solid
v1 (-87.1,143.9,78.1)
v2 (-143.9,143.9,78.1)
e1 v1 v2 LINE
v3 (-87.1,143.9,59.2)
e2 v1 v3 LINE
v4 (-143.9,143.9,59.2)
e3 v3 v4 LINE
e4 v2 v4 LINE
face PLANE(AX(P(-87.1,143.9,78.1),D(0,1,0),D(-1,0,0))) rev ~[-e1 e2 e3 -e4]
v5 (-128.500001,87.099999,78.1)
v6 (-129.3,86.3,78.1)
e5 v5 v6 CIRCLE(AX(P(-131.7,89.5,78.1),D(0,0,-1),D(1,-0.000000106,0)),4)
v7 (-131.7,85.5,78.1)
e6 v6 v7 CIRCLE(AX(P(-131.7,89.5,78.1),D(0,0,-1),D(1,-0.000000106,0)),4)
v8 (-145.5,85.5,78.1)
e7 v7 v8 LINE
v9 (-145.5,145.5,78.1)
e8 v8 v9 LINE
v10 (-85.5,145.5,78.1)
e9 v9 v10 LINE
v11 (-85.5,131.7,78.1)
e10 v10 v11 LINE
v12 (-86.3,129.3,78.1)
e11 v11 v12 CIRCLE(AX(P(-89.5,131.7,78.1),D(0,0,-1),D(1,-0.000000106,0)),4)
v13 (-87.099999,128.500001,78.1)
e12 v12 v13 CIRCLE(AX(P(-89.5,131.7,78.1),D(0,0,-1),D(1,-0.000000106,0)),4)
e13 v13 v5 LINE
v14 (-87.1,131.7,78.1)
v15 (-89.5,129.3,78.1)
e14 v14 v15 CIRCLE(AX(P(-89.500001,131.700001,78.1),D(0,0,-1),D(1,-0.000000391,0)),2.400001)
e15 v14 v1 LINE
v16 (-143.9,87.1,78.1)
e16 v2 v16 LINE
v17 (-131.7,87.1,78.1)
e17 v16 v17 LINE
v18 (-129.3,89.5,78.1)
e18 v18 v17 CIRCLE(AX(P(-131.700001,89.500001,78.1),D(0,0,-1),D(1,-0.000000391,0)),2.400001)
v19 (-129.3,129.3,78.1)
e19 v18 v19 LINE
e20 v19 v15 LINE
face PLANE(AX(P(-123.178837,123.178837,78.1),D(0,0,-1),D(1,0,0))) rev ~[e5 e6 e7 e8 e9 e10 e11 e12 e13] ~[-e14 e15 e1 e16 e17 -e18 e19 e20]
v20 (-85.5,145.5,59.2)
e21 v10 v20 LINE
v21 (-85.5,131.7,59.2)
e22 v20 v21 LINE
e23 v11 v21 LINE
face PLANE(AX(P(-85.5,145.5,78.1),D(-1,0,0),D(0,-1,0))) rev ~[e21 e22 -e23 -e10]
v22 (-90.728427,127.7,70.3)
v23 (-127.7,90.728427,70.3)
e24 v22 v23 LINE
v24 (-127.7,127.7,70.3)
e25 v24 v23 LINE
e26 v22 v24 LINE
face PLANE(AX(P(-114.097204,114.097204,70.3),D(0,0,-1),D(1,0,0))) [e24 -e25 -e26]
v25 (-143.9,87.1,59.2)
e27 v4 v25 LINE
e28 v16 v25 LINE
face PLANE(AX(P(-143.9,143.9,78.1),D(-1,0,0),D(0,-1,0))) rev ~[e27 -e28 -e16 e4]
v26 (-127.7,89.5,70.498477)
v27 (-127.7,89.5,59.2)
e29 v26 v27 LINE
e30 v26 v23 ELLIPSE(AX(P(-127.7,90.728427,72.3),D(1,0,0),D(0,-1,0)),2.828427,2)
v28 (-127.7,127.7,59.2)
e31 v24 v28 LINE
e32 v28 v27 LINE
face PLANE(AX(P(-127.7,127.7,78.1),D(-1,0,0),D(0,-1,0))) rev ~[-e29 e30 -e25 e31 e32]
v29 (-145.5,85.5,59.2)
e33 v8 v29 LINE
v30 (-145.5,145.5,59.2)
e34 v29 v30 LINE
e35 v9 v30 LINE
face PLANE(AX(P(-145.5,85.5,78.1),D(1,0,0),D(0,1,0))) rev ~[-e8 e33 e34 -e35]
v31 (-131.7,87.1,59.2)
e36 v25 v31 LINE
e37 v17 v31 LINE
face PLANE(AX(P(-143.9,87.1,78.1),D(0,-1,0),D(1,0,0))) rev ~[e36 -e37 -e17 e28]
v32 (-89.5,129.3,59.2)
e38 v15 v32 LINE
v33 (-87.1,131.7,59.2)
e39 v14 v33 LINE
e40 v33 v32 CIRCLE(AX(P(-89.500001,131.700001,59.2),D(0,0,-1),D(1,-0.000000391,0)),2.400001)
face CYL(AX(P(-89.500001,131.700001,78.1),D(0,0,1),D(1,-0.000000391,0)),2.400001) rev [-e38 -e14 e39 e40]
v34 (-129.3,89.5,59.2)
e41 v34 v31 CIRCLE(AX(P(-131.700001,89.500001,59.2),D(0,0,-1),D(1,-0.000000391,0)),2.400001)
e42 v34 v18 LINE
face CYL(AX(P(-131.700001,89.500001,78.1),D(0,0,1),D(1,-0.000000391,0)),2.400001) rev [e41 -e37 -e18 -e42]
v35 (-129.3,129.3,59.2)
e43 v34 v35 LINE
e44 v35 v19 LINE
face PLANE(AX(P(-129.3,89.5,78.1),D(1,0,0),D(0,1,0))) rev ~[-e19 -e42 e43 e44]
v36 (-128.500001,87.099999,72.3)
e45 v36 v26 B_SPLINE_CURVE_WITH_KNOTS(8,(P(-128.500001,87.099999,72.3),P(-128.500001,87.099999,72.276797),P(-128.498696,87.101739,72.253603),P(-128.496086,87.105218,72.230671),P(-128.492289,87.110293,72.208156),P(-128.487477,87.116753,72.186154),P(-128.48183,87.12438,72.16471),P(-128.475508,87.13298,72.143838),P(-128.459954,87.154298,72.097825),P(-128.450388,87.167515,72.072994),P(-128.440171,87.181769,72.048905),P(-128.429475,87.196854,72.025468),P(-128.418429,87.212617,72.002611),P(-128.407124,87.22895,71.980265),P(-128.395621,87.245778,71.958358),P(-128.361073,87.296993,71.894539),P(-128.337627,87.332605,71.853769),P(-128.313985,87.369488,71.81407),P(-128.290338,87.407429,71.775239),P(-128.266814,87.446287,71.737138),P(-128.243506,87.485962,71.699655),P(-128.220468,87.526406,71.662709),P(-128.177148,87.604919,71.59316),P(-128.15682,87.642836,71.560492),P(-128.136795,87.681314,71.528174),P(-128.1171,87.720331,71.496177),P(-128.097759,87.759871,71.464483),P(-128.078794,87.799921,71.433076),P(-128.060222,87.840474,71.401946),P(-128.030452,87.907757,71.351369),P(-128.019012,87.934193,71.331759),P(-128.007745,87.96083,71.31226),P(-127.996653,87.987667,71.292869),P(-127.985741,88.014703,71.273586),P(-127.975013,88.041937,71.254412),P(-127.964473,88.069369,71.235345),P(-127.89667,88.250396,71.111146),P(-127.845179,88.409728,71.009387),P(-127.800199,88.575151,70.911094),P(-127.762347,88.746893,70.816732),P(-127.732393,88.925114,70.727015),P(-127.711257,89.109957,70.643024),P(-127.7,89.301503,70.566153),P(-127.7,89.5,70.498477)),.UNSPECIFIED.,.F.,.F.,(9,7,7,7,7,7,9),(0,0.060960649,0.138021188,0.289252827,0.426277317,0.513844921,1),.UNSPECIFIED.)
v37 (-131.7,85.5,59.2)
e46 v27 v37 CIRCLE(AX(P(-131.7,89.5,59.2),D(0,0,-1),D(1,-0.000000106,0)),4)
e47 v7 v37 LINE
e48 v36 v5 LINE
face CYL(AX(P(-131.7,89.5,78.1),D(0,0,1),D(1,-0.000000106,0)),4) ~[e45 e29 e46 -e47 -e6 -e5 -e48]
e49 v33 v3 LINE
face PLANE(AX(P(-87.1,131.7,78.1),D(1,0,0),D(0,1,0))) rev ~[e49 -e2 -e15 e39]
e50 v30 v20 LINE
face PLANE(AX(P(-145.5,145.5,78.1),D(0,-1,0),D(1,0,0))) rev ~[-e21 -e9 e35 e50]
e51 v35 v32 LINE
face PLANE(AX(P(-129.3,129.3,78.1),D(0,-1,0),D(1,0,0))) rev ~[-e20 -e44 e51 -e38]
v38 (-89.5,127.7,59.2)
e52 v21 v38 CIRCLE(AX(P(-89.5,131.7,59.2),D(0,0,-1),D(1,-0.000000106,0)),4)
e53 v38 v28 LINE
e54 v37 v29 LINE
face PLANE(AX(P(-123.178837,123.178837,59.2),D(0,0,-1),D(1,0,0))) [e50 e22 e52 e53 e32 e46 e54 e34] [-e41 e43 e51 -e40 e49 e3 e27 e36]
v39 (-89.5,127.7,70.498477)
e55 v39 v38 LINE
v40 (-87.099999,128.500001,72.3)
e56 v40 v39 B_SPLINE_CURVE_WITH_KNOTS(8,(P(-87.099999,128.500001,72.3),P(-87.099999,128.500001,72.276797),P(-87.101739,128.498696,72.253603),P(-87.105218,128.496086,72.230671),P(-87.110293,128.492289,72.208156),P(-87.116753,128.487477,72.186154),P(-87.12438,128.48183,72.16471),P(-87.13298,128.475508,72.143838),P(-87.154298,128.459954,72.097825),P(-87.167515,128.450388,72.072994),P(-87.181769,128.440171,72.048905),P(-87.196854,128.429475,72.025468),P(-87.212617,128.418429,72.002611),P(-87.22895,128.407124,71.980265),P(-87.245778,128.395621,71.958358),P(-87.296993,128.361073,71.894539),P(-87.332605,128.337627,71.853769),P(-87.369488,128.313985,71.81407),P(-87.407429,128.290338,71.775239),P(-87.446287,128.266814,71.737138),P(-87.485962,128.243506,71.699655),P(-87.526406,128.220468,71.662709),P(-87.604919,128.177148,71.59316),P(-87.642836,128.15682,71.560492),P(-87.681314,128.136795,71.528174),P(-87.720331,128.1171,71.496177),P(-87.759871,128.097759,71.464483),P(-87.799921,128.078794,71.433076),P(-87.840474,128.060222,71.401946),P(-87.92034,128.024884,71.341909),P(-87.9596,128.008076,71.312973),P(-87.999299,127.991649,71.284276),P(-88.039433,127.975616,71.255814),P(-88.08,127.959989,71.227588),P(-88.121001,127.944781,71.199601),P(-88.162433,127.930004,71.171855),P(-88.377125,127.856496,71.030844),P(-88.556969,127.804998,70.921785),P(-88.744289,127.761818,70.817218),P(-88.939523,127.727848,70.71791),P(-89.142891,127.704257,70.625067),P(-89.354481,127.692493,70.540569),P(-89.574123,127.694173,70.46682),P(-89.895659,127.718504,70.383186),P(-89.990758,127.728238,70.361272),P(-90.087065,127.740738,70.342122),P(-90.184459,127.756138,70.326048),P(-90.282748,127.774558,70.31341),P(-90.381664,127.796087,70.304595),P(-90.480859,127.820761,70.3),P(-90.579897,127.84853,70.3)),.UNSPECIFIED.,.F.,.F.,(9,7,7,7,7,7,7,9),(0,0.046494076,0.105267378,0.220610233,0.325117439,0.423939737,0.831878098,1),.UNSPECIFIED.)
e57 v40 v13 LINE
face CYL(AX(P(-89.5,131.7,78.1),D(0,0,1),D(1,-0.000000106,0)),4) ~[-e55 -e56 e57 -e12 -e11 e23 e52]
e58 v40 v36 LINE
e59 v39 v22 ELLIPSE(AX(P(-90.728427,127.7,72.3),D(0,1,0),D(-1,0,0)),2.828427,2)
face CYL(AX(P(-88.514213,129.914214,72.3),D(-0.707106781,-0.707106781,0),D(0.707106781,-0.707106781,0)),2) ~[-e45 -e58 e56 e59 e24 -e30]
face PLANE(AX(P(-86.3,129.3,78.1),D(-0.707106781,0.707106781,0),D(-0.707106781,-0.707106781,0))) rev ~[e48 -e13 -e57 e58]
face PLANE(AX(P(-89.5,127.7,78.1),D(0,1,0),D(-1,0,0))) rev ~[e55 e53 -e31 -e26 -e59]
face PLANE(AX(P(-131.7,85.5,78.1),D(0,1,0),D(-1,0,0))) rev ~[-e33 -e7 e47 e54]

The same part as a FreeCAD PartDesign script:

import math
import FreeCAD as App
import Part
import Sketcher
from FreeCAD import Vector
Q = App.Units.Quantity


def edges_at(feature, points):
    """Names of the edges that pass closest to the given points."""
    edges = feature.Shape.Edges
    near = lambda p: min(range(len(edges)), key=lambda i: edges[i].distToShape(Part.Vertex(*p))[0])
    return sorted({f"Edge{near(p) + 1}" for p in points})

doc = App.newDocument("Part")
params = doc.addObject("Spreadsheet::Sheet", "Params")
for row, (alias, value) in enumerate([
    ("sketch1_radius", "4 mm"),
    ("sketch1_radius2", "2.400001 mm"),
    ("sketch1_width", "60 mm"),
    ("sketch1_width2", "38.2 mm"),
    ("pad1_length", "18.9 mm"),
    ("sketch2_width", "43 mm"),
    ("pad2_length", "7.8 mm"),
    ("fillet_radius", "2 mm"),
], start=1):
    params.set(f"A{row}", alias)
    params.set(f"B{row}", "=" + value)
    params.setAlias(f"B{row}", alias)

body = doc.addObject("PartDesign::Body", "Body")

sketch1 = body.newObject("Sketcher::SketchObject", "Sketch")
sketch1.AttachmentSupport = (doc.getObject("XY_Plane"), [""])
sketch1.MapMode = "FlatFace"
sketch1.addGeometry(Part.LineSegment(Vector(-30, 30, 0), Vector(-30, -30, 0)), False)
sketch1.addGeometry(Part.LineSegment(Vector(-30, -30, 0), Vector(30, -30, 0)), False)
sketch1.addGeometry(Part.LineSegment(Vector(30, -30, 0), Vector(30, -16.2, 0)), False)
sketch1.addGeometry(Part.ArcOfCircle(Part.Circle(Vector(26, -16.2, 0), Vector(0, 0, 1), 4), math.radians(0.000006), math.radians(89.999994)), False)
sketch1.addGeometry(Part.LineSegment(Vector(26, -12.2, 0), Vector(-12.2, -12.2, 0)), False)
sketch1.addGeometry(Part.LineSegment(Vector(-12.2, -12.2, 0), Vector(-12.2, 26, 0)), False)
sketch1.addGeometry(Part.ArcOfCircle(Part.Circle(Vector(-16.2, 26, 0), Vector(0, 0, 1), 4), math.radians(0.000006), math.radians(89.999994)), False)
sketch1.addGeometry(Part.LineSegment(Vector(-16.2, 30, 0), Vector(-30, 30, 0)), False)
sketch1.addGeometry(Part.LineSegment(Vector(-28.4, -28.4, 0), Vector(-28.4, 28.4, 0)), False)
sketch1.addGeometry(Part.LineSegment(Vector(-28.4, 28.4, 0), Vector(-16.2, 28.4, 0)), False)
sketch1.addGeometry(Part.ArcOfCircle(Part.Circle(Vector(-16.200001, 25.999999, 0), Vector(0, 0, 1), 2.400001), math.radians(0.000022), math.radians(89.999978)), False)
sketch1.addGeometry(Part.LineSegment(Vector(-13.8, 26, 0), Vector(-13.8, -13.8, 0)), False)
sketch1.addGeometry(Part.LineSegment(Vector(-13.8, -13.8, 0), Vector(26, -13.8, 0)), False)
sketch1.addGeometry(Part.ArcOfCircle(Part.Circle(Vector(25.999999, -16.200001, 0), Vector(0, 0, 1), 2.400001), math.radians(0.000022), math.radians(89.999978)), False)
sketch1.addGeometry(Part.LineSegment(Vector(28.4, -16.2, 0), Vector(28.4, -28.4, 0)), False)
sketch1.addGeometry(Part.LineSegment(Vector(28.4, -28.4, 0), Vector(-28.4, -28.4, 0)), False)
sketch1.addConstraint(Sketcher.Constraint("Coincident", 0, 2, 1, 1))
sketch1.addConstraint(Sketcher.Constraint("Coincident", 1, 2, 2, 1))
sketch1.addConstraint(Sketcher.Constraint("Tangent", 2, 2, 3, 1))
sketch1.addConstraint(Sketcher.Constraint("Tangent", 3, 2, 4, 1))
sketch1.addConstraint(Sketcher.Constraint("Coincident", 4, 2, 5, 1))
sketch1.addConstraint(Sketcher.Constraint("Tangent", 5, 2, 6, 1))
sketch1.addConstraint(Sketcher.Constraint("Tangent", 6, 2, 7, 1))
sketch1.addConstraint(Sketcher.Constraint("Coincident", 7, 2, 0, 1))
sketch1.addConstraint(Sketcher.Constraint("Coincident", 8, 2, 9, 1))
sketch1.addConstraint(Sketcher.Constraint("Tangent", 9, 2, 10, 2))
sketch1.addConstraint(Sketcher.Constraint("Tangent", 10, 1, 11, 1))
sketch1.addConstraint(Sketcher.Constraint("Coincident", 11, 2, 12, 1))
sketch1.addConstraint(Sketcher.Constraint("Tangent", 12, 2, 13, 2))
sketch1.addConstraint(Sketcher.Constraint("Tangent", 13, 1, 14, 1))
sketch1.addConstraint(Sketcher.Constraint("Coincident", 14, 2, 15, 1))
sketch1.addConstraint(Sketcher.Constraint("Coincident", 15, 2, 8, 1))
sketch1.addConstraint(Sketcher.Constraint("Vertical", 0))
sketch1.addConstraint(Sketcher.Constraint("Horizontal", 1))
sketch1.addConstraint(Sketcher.Constraint("Vertical", 2))
sketch1.addConstraint(Sketcher.Constraint("Horizontal", 4))
sketch1.addConstraint(Sketcher.Constraint("Vertical", 5))
sketch1.addConstraint(Sketcher.Constraint("Horizontal", 7))
sketch1.addConstraint(Sketcher.Constraint("Vertical", 8))
sketch1.addConstraint(Sketcher.Constraint("Horizontal", 9))
sketch1.addConstraint(Sketcher.Constraint("Vertical", 11))
sketch1.addConstraint(Sketcher.Constraint("Horizontal", 12))
sketch1.addConstraint(Sketcher.Constraint("Vertical", 14))
sketch1.addConstraint(Sketcher.Constraint("Horizontal", 15))
sketch1.addConstraint(Sketcher.Constraint("Coincident", 10, 3, 6, 3))
sketch1.addConstraint(Sketcher.Constraint("Coincident", 13, 3, 3, 3))
sketch1.addConstraint(Sketcher.Constraint("Equal", 3, 6))
sketch1.addConstraint(Sketcher.Constraint("Equal", 10, 13))
sketch1.addConstraint(Sketcher.Constraint("Symmetric", 1, 2, 7, 2, -1, 1))
sketch1.addConstraint(Sketcher.Constraint("Symmetric", 8, 2, 14, 2, -1, 1))
sketch1.addConstraint(Sketcher.Constraint("Equal", 1, 0))
sketch1.addConstraint(Sketcher.Constraint("Equal", 7, 2))
sketch1.addConstraint(Sketcher.Constraint("Radius", 3, Q("4 mm")))
sketch1.addConstraint(Sketcher.Constraint("Radius", 10, Q("2.400001 mm")))
sketch1.addConstraint(Sketcher.Constraint("DistanceX", 1, 1, 1, 2, Q("60 mm")))
sketch1.addConstraint(Sketcher.Constraint("DistanceX", 4, 2, 4, 1, Q("38.2 mm")))
sketch1.setExpression("Constraints[36]", "Params.sketch1_radius")
sketch1.setExpression("Constraints[37]", "Params.sketch1_radius2")
sketch1.setExpression("Constraints[38]", "Params.sketch1_width")
sketch1.setExpression("Constraints[39]", "Params.sketch1_width2")
pad1 = body.newObject("PartDesign::Pad", "Pad")
pad1.Profile = sketch1
pad1.setExpression("Length", "Params.pad1_length")

sketch2 = body.newObject("Sketcher::SketchObject", "Sketch001")
sketch2.AttachmentSupport = (doc.getObject("XY_Plane"), [""])
sketch2.MapMode = "FlatFace"
sketch2.addGeometry(Part.LineSegment(Vector(-13.8, 29.2, 0), Vector(-13.8, -13.8, 0)), False)
sketch2.addGeometry(Part.LineSegment(Vector(-13.8, -13.8, 0), Vector(29.2, -13.8, 0)), False)
sketch2.addGeometry(Part.LineSegment(Vector(29.2, -13.8, 0), Vector(-13.8, 29.2, 0)), False)
sketch2.addConstraint(Sketcher.Constraint("Coincident", 0, 2, 1, 1))
sketch2.addConstraint(Sketcher.Constraint("Coincident", 1, 2, 2, 1))
sketch2.addConstraint(Sketcher.Constraint("Coincident", 2, 2, 0, 1))
sketch2.addConstraint(Sketcher.Constraint("Vertical", 0))
sketch2.addConstraint(Sketcher.Constraint("Horizontal", 1))
sketch2.addConstraint(Sketcher.Constraint("Equal", 1, 0))
sketch2.addConstraint(Sketcher.Constraint("DistanceX", 1, 1, 1, 2, Q("43 mm")))
sketch2.addConstraint(Sketcher.Constraint("DistanceX", 0, 2, -1, 1, Q("13.8 mm")))
sketch2.addConstraint(Sketcher.Constraint("DistanceY", 0, 2, -1, 1, Q("13.8 mm")))
sketch2.setExpression("Constraints[6]", "Params.sketch2_width")
pad2 = body.newObject("PartDesign::Pad", "Pad001")
pad2.Profile = sketch2
pad2.setExpression("Length", "Params.pad2_length")
doc.recompute()

fillet = body.newObject("PartDesign::Fillet", "Fillet")
fillet.Base = (pad2, edges_at(pad2, [(7.7, 7.7, 7.8)]))
fillet.setExpression("Radius", "Params.fillet_radius")
body2 = doc.addObject("PartDesign::Body", "Body001")
doc.recompute()

body.Placement = App.Placement(Vector(-115.5, 115.5, 78.1), App.Rotation(Vector(1, 0, 0), 180))
boolean = body2.newObject("PartDesign::Boolean", "Boolean")
boolean.Type = "Fuse"
boolean.addObjects([body])

doc.recompute()
